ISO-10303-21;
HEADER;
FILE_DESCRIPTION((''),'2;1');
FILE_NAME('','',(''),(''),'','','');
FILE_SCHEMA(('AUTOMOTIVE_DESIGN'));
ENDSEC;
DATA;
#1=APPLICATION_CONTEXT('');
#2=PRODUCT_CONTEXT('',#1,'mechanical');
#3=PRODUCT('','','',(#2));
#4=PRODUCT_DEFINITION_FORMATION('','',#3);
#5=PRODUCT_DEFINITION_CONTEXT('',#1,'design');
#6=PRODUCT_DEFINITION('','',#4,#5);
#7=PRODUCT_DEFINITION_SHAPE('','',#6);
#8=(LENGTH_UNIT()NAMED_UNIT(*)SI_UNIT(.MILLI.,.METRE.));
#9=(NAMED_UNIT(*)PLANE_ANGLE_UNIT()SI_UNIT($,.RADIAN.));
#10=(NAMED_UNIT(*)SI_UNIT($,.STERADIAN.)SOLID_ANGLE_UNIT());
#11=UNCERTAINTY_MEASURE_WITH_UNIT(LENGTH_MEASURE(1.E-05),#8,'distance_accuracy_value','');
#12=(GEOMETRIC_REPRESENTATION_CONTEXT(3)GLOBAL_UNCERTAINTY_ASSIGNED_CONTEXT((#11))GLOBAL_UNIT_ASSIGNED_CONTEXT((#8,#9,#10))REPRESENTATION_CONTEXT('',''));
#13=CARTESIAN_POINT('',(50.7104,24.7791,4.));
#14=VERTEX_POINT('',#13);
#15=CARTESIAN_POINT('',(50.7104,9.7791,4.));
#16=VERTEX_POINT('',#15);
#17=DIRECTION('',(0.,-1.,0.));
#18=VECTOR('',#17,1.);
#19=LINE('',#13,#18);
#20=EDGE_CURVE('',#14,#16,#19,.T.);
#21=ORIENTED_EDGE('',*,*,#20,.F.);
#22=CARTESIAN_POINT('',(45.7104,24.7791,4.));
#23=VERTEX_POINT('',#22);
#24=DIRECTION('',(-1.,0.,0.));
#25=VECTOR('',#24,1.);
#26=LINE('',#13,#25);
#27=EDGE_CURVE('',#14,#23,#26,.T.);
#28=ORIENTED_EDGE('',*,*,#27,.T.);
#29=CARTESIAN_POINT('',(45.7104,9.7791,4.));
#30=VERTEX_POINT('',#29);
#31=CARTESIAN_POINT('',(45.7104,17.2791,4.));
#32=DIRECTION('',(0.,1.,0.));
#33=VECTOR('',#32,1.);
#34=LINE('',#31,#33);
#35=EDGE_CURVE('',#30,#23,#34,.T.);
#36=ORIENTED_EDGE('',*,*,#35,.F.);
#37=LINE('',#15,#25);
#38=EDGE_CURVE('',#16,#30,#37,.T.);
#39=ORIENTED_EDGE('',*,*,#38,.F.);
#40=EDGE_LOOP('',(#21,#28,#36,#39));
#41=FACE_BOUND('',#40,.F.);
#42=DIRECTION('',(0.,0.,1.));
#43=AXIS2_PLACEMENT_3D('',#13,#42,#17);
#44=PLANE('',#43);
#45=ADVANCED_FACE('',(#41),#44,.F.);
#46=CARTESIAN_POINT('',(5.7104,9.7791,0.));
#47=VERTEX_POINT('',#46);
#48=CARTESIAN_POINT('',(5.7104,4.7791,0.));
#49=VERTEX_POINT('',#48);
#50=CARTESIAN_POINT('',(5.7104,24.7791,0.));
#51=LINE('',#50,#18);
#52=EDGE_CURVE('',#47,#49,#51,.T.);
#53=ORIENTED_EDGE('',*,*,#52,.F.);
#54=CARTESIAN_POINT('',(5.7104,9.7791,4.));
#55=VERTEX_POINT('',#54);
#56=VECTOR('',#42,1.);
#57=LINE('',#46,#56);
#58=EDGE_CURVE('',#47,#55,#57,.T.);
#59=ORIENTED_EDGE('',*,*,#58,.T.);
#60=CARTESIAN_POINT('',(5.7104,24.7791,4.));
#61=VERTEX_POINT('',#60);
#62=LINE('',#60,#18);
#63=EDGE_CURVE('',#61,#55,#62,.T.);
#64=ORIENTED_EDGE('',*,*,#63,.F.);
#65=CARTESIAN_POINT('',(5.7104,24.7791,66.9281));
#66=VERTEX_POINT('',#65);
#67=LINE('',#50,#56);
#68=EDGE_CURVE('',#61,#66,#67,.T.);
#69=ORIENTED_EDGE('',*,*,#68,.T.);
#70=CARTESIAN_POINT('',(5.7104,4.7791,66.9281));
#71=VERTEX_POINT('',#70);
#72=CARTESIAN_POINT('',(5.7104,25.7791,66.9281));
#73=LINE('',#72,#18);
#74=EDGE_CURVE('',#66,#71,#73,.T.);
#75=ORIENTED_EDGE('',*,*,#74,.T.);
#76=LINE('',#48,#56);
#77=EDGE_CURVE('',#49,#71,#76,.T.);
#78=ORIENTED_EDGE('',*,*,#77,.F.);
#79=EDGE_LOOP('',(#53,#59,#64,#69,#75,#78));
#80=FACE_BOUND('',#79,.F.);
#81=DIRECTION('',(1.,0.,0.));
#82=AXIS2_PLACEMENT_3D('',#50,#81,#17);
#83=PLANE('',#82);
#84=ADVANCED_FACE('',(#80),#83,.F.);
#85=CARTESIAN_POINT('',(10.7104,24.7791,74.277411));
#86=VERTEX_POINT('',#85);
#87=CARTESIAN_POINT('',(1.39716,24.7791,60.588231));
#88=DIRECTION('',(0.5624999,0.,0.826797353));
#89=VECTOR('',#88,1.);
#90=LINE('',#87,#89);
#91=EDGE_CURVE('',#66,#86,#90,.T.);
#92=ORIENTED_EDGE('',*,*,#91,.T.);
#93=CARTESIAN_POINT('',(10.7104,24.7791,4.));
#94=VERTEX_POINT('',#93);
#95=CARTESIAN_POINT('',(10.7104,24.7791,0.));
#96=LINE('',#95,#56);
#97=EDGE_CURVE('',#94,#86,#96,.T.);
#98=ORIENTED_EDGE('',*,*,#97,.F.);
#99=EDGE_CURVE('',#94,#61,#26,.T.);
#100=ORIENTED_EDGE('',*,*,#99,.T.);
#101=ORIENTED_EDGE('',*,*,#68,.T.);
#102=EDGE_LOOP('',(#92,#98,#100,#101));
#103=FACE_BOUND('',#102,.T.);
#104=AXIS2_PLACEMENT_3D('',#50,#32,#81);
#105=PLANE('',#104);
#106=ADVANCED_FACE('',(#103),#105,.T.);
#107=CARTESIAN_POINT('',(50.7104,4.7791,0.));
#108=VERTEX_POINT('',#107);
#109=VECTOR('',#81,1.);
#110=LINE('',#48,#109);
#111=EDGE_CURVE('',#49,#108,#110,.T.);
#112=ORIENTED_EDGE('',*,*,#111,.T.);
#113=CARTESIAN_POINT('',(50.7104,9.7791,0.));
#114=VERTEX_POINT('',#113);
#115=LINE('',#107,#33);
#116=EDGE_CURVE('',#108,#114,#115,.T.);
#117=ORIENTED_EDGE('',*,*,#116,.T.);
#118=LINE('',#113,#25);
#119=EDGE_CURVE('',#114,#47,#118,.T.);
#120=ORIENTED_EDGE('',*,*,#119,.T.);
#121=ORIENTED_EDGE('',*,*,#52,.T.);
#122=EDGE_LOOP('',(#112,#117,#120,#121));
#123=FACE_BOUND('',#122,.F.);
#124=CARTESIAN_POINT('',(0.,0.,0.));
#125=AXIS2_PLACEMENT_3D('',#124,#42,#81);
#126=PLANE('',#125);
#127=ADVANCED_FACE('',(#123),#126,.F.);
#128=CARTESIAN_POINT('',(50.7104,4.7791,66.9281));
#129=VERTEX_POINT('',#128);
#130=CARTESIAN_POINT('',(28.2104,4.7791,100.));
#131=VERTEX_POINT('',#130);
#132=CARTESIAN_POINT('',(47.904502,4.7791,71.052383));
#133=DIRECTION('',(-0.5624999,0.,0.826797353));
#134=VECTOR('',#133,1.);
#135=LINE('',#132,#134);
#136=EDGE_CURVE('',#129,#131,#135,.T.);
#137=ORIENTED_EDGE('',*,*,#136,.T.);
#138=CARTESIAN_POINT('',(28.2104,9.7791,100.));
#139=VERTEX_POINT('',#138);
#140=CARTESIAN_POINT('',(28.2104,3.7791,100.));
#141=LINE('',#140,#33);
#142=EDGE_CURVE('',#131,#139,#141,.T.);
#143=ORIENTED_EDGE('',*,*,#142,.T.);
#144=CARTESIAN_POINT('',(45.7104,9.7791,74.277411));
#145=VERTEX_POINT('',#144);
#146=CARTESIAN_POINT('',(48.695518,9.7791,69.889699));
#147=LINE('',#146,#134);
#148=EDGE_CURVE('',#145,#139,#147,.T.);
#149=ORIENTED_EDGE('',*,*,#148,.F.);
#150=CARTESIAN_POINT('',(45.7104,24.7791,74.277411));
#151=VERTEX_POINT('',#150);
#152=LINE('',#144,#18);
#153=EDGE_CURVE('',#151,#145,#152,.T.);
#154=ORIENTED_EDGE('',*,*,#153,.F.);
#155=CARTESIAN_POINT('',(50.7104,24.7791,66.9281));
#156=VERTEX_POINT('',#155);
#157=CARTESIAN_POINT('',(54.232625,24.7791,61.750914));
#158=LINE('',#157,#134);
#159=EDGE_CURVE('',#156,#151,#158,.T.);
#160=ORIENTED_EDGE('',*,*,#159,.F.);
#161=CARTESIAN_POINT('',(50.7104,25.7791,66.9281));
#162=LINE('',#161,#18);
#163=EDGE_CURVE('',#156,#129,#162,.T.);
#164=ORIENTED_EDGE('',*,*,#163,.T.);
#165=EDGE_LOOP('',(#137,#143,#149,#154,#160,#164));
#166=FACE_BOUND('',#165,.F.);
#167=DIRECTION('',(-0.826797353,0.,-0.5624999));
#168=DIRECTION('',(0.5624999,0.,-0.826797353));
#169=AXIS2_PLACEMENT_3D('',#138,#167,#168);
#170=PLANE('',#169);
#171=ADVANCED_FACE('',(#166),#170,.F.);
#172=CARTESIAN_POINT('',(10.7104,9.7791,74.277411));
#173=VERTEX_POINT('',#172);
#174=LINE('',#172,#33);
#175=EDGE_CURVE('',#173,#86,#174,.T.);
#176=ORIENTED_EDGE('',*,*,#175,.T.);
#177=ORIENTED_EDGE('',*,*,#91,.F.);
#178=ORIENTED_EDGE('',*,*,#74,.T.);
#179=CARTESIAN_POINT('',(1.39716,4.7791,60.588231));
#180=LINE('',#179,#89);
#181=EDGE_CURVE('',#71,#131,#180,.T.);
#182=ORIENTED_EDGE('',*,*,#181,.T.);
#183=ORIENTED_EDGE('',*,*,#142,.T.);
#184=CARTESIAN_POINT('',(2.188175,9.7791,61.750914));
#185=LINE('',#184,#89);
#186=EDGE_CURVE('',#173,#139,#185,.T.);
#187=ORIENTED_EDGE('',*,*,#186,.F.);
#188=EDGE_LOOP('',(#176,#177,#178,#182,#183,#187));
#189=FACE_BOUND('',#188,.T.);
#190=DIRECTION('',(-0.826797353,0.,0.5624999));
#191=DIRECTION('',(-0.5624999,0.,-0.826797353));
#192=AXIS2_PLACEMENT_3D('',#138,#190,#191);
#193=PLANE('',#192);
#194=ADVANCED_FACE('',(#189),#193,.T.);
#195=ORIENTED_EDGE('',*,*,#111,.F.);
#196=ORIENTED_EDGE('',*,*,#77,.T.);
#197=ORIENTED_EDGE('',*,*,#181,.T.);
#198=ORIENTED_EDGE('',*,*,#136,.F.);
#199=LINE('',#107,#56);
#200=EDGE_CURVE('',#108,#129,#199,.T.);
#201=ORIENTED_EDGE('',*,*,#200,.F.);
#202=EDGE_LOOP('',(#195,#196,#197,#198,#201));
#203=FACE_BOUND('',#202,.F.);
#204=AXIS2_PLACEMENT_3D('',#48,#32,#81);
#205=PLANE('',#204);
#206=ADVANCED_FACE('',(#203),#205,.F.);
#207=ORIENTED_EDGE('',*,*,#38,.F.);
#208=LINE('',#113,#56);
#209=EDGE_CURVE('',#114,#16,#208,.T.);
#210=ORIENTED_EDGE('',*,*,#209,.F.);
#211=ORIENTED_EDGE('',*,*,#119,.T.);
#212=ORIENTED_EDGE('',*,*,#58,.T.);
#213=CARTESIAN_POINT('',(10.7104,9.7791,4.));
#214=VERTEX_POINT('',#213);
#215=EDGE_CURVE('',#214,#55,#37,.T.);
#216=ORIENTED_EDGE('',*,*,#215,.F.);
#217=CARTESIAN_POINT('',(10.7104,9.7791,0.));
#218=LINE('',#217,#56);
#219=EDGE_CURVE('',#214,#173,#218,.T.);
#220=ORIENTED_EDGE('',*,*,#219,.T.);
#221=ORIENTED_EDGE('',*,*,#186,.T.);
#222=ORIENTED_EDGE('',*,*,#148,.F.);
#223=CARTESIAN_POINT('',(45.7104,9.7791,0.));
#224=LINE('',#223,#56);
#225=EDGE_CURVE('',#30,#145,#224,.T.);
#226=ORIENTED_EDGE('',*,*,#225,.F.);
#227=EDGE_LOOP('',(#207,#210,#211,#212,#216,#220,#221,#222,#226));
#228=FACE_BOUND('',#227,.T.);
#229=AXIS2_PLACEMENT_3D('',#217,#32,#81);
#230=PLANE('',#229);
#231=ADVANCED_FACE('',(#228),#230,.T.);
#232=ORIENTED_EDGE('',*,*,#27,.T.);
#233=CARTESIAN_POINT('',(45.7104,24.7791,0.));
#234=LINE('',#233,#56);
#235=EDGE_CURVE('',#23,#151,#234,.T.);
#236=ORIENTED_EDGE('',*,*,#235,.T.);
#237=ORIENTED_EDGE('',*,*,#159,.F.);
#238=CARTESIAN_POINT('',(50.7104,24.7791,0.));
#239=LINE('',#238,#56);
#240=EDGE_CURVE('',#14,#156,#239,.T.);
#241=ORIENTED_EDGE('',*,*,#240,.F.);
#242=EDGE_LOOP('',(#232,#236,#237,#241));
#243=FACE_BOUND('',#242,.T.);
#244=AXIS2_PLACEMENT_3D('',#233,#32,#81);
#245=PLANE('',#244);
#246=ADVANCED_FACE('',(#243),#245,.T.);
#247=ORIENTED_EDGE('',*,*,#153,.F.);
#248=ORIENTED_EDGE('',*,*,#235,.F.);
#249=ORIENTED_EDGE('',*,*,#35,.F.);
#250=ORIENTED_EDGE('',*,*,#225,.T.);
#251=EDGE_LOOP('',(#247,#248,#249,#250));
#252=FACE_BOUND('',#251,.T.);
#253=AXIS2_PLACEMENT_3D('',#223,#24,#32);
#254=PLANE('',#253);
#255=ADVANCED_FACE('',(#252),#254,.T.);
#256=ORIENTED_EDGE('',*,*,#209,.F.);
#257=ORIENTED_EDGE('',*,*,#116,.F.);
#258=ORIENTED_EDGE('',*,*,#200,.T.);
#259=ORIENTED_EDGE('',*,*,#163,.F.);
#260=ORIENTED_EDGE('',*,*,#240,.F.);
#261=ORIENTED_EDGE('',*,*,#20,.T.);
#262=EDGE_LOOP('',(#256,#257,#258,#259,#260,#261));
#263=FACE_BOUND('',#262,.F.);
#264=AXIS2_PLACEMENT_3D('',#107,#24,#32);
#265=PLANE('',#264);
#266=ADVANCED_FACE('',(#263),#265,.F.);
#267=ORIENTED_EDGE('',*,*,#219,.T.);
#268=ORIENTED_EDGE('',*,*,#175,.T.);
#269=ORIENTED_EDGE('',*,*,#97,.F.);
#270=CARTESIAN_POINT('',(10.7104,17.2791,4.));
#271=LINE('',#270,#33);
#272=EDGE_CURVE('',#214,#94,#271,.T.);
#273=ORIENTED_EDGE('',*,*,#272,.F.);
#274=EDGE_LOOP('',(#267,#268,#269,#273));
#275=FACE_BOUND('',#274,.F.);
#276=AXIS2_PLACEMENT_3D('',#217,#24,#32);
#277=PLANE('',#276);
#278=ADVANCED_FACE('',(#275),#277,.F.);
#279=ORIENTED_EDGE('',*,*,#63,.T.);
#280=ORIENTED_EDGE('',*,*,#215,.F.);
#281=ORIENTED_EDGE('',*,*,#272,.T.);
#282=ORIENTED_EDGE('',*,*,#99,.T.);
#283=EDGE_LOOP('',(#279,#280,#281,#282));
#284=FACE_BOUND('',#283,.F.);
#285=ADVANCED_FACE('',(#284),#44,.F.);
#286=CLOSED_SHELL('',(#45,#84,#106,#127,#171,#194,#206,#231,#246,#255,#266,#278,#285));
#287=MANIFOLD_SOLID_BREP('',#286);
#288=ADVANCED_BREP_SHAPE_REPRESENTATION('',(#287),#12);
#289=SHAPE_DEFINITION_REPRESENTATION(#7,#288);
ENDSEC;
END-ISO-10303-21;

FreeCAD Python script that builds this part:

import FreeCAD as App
import Part
import Sketcher

V = App.Vector
Q = App.Units.Quantity

doc = App.newDocument("Part")
body = doc.addObject("PartDesign::Body", "Body")

sketch1 = body.newObject("Sketcher::SketchObject", "Sketch")
sketch1.AttachmentSupport = (doc.getObject("XY_Plane"), [""])
sketch1.MapMode = "FlatFace"
sketch1.addGeometry(Part.LineSegment(V(45.7104, 9.7791, 0), V(10.7104, 9.7791, 0)), False)
sketch1.addGeometry(Part.LineSegment(V(10.7104, 9.7791, 0), V(10.7104, 24.7791, 0)), False)
sketch1.addGeometry(Part.LineSegment(V(10.7104, 24.7791, 0), V(5.7104, 24.7791, 0)), False)
sketch1.addGeometry(Part.LineSegment(V(5.7104, 24.7791, 0), V(5.7104, 4.7791, 0)), False)
sketch1.addGeometry(Part.LineSegment(V(5.7104, 4.7791, 0), V(50.7104, 4.7791, 0)), False)
sketch1.addGeometry(Part.LineSegment(V(50.7104, 4.7791, 0), V(50.7104, 24.7791, 0)), False)
sketch1.addGeometry(Part.LineSegment(V(50.7104, 24.7791, 0), V(45.7104, 24.7791, 0)), False)
sketch1.addGeometry(Part.LineSegment(V(45.7104, 24.7791, 0), V(45.7104, 9.7791, 0)), False)
sketch1.addConstraint(Sketcher.Constraint("Coincident", 0, 2, 1, 1))
sketch1.addConstraint(Sketcher.Constraint("Coincident", 1, 2, 2, 1))
sketch1.addConstraint(Sketcher.Constraint("Coincident", 2, 2, 3, 1))
sketch1.addConstraint(Sketcher.Constraint("Coincident", 3, 2, 4, 1))
sketch1.addConstraint(Sketcher.Constraint("Coincident", 4, 2, 5, 1))
sketch1.addConstraint(Sketcher.Constraint("Coincident", 5, 2, 6, 1))
sketch1.addConstraint(Sketcher.Constraint("Coincident", 6, 2, 7, 1))
sketch1.addConstraint(Sketcher.Constraint("Coincident", 7, 2, 0, 1))
sketch1.addConstraint(Sketcher.Constraint("Horizontal", 0))
sketch1.addConstraint(Sketcher.Constraint("Vertical", 1))
sketch1.addConstraint(Sketcher.Constraint("Horizontal", 2))
sketch1.addConstraint(Sketcher.Constraint("Vertical", 3))
sketch1.addConstraint(Sketcher.Constraint("Horizontal", 4))
sketch1.addConstraint(Sketcher.Constraint("Vertical", 5))
sketch1.addConstraint(Sketcher.Constraint("Horizontal", 6))
sketch1.addConstraint(Sketcher.Constraint("Vertical", 7))
sketch1.addConstraint(Sketcher.Constraint("Horizontal", 2, 2, 5, 2))
sketch1.addConstraint(Sketcher.Constraint("Equal", 2, 6))
sketch1.addConstraint(Sketcher.Constraint("DistanceX", 0, 2, 0, 1, Q("35 mm")))
sketch1.addConstraint(Sketcher.Constraint("DistanceX", 2, 2, 2, 1, Q("5 mm")))
sketch1.addConstraint(Sketcher.Constraint("DistanceY", 1, 1, 1, 2, Q("15 mm")))
sketch1.addConstraint(Sketcher.Constraint("DistanceY", 3, 2, 0, 2, Q("5 mm")))
sketch1.addConstraint(Sketcher.Constraint("DistanceY", -1, 1, 0, 2, Q("9.779 mm")))
sketch1.addConstraint(Sketcher.Constraint("DistanceX", -1, 1, 0, 2, Q("10.7104 mm")))
pad1 = body.newObject("PartDesign::Pad", "Pad")
pad1.Profile = sketch1
pad1.Length = 100

sketch2 = body.newObject("Sketcher::SketchObject", "Sketch001")
sketch2.AttachmentSupport = (doc.getObject("XZ_Plane"), [""])
sketch2.MapMode = "FlatFace"
sketch2.AttachmentOffset = App.Placement(V(0, 0, -9.7791), App.Rotation())
sketch2.addGeometry(Part.LineSegment(V(5.7104, 66.9281, 0), V(5.7104, 100, 0)), False)
sketch2.addGeometry(Part.LineSegment(V(5.7104, 100, 0), V(28.2104, 100, 0)), False)
sketch2.addGeometry(Part.LineSegment(V(28.2104, 100, 0), V(5.7104, 66.9281, 0)), False)
sketch2.addGeometry(Part.LineSegment(V(50.7104, 66.9281, 0), V(28.2104, 100, 0)), False)
sketch2.addGeometry(Part.LineSegment(V(28.2104, 100, 0), V(50.7104, 100, 0)), False)
sketch2.addGeometry(Part.LineSegment(V(50.7104, 100, 0), V(50.7104, 66.9281, 0)), False)
sketch2.addConstraint(Sketcher.Constraint("Coincident", 0, 2, 1, 1))
sketch2.addConstraint(Sketcher.Constraint("Coincident", 1, 2, 2, 1))
sketch2.addConstraint(Sketcher.Constraint("Coincident", 2, 2, 0, 1))
sketch2.addConstraint(Sketcher.Constraint("Coincident", 3, 2, 4, 1))
sketch2.addConstraint(Sketcher.Constraint("Coincident", 4, 2, 5, 1))
sketch2.addConstraint(Sketcher.Constraint("Coincident", 5, 2, 3, 1))
sketch2.addConstraint(Sketcher.Constraint("Vertical", 0))
sketch2.addConstraint(Sketcher.Constraint("Horizontal", 1))
sketch2.addConstraint(Sketcher.Constraint("Horizontal", 4))
sketch2.addConstraint(Sketcher.Constraint("Vertical", 5))
sketch2.addConstraint(Sketcher.Constraint("Coincident", 3, 2, 1, 2))
sketch2.addConstraint(Sketcher.Constraint("Horizontal", 2, 2, 5, 2))
sketch2.addConstraint(Sketcher.Constraint("Equal", 1, 4))
sketch2.addConstraint(Sketcher.Constraint("Distance", 2, Q("40 mm")))
sketch2.addConstraint(Sketcher.Constraint("DistanceX", 1, 1, 1, 2, Q("22.5 mm")))
sketch2.addConstraint(Sketcher.Constraint("DistanceY", -1, 1, 0, 2, Q("100 mm")))
sketch2.addConstraint(Sketcher.Constraint("DistanceX", -1, 1, 0, 2, Q("5.7104 mm")))
pocket1 = body.newObject("PartDesign::Pocket", "Pocket")
pocket1.Profile = sketch2
pocket1.Type = "ThroughAll"
pocket1.Midplane = True

sketch3 = body.newObject("Sketcher::SketchObject", "Sketch002")
sketch3.AttachmentSupport = (doc.getObject("YZ_Plane"), [""])
sketch3.MapMode = "FlatFace"
sketch3.AttachmentOffset = App.Placement(V(0, 0, 50.7104), App.Rotation())
sketch3.addGeometry(Part.LineSegment(V(9.7791, 0, 0), V(24.7791, 0, 0)), False)
sketch3.addGeometry(Part.LineSegment(V(24.7791, 0, 0), V(24.7791, 4, 0)), False)
sketch3.addGeometry(Part.LineSegment(V(24.7791, 4, 0), V(9.7791, 4, 0)), False)
sketch3.addGeometry(Part.LineSegment(V(9.7791, 4, 0), V(9.7791, 0, 0)), False)
sketch3.addConstraint(Sketcher.Constraint("Coincident", 0, 2, 1, 1))
sketch3.addConstraint(Sketcher.Constraint("Coincident", 1, 2, 2, 1))
sketch3.addConstraint(Sketcher.Constraint("Coincident", 2, 2, 3, 1))
sketch3.addConstraint(Sketcher.Constraint("Coincident", 3, 2, 0, 1))
sketch3.addConstraint(Sketcher.Constraint("Horizontal", 0))
sketch3.addConstraint(Sketcher.Constraint("Vertical", 1))
sketch3.addConstraint(Sketcher.Constraint("Horizontal", 2))
sketch3.addConstraint(Sketcher.Constraint("Vertical", 3))
sketch3.addConstraint(Sketcher.Constraint("PointOnObject", 0, 2, -1))
sketch3.addConstraint(Sketcher.Constraint("DistanceY", 1, 1, 1, 2, Q("4 mm")))
sketch3.addConstraint(Sketcher.Constraint("DistanceX", 0, 1, 0, 2, Q("15 mm")))
sketch3.addConstraint(Sketcher.Constraint("DistanceX", -1, 1, 0, 2, Q("24.779 mm")))
pocket2 = body.newObject("PartDesign::Pocket", "Pocket001")
pocket2.Profile = sketch3
pocket2.Type = "ThroughAll"

doc.recompute()
